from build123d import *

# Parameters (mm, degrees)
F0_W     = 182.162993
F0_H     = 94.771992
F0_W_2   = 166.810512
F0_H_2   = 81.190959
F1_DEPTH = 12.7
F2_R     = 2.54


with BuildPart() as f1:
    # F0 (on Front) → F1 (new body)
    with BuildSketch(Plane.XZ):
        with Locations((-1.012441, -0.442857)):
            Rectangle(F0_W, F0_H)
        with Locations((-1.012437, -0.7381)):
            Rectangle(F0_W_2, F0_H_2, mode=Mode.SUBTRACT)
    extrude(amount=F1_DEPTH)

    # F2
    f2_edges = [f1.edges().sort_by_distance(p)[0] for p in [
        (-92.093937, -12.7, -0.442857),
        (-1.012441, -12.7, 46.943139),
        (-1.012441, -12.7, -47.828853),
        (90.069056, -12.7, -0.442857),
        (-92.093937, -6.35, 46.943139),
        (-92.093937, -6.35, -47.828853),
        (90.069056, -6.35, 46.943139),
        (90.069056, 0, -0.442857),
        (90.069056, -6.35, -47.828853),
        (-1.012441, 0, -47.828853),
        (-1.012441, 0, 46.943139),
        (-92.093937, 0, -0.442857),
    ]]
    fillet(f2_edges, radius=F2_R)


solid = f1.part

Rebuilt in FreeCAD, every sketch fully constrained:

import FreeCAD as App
import Part
import Sketcher
Q = App.Units.Quantity


def edges_at(feature, points):
    """Names of the edges that pass closest to the given points."""
    edges = feature.Shape.Edges
    near = lambda p: min(range(len(edges)), key=lambda i: edges[i].distToShape(Part.Vertex(*p))[0])
    return sorted({f"Edge{near(p) + 1}" for p in points})


def add_polygon(sketch, points):
    """Adds a closed chain of lines whose ends are joined by coincident constraints."""
    first, n = sketch.GeometryCount, len(points)
    for a, b in zip(points, points[1:] + points[:1]):
        sketch.addGeometry(Part.LineSegment(App.Vector(*a, 0), App.Vector(*b, 0)), False)
    for i in range(n):
        sketch.addConstraint(Sketcher.Constraint("Coincident", first + i, 2, first + (i + 1) % n, 1))

doc = App.newDocument("Part")
params = doc.addObject("Spreadsheet::Sheet", "Params")
for row, (alias, value) in enumerate([
    ("pad1_length", "0.5 in"),
    ("fillet_radius", "0.1 in"),
], start=1):
    params.set(f"A{row}", alias)
    params.set(f"B{row}", "=" + value)
    params.setAlias(f"B{row}", alias)

body = doc.addObject("PartDesign::Body", "Body")

sketch1 = body.newObject("Sketcher::SketchObject", "Sketch")
sketch1.AttachmentSupport = (doc.getObject("XZ_Plane"), [""])
sketch1.MapMode = "FlatFace"
add_polygon(sketch1, [(-92, 47), (-92, -48), (90, -48), (90, 47)])
add_polygon(sketch1, [(82, -41), (-84, -41), (-84, 40), (82, 40)])
sketch1.addConstraint([
    Sketcher.Constraint("Vertical", 0),
    Sketcher.Constraint("Horizontal", 1),
    Sketcher.Constraint("Vertical", 2),
    Sketcher.Constraint("Horizontal", 3),
    Sketcher.Constraint("Horizontal", 4),
    Sketcher.Constraint("Vertical", 5),
    Sketcher.Constraint("Horizontal", 6),
    Sketcher.Constraint("Vertical", 7),
    Sketcher.Constraint("DistanceY", 5, 1, 5, 2, Q("81.190959 mm")),
    Sketcher.Constraint("DistanceX", 1, 1, 1, 2, Q("182.162993 mm")),
    Sketcher.Constraint("DistanceX", 4, 2, 4, 1, Q("166.810512 mm")),
    Sketcher.Constraint("DistanceY", 0, 2, 0, 1, Q("94.771992 mm")),
    Sketcher.Constraint("DistanceY", -1, 1, 2, 2, Q("46.943139 mm")),
    Sketcher.Constraint("DistanceY", 4, 2, -1, 1, Q("41.333579 mm")),
    Sketcher.Constraint("DistanceX", -1, 1, 6, 2, Q("82.392819 mm")),
    Sketcher.Constraint("DistanceX", 4, 2, 1, 2, Q("174.486749 mm")),
])
pad1 = body.newObject("PartDesign::Pad", "Pad")
pad1.Profile = sketch1
pad1.setExpression("Length", "Params.pad1_length")
doc.recompute()

fillet = body.newObject("PartDesign::Fillet", "Fillet")
fillet.Base = (pad1, edges_at(pad1, [
    (-92.094, -12.7, -0.443),
    (-1.012, -12.7, 46.943),
    (-1.012, -12.7, -47.829),
    (90.069, -12.7, -0.443),
    (-92.094, -6.35, 46.943),
    (-92.094, -6.35, -47.829),
    (90.069, -6.35, 46.943),
    (90.069, 0, -0.443),
    (90.069, -6.35, -47.829),
    (-1.012, 0, -47.829),
    (-1.012, 0, 46.943),
    (-92.094, 0, -0.443),
]))
fillet.setExpression("Radius", "Params.fillet_radius")

doc.recompute()
